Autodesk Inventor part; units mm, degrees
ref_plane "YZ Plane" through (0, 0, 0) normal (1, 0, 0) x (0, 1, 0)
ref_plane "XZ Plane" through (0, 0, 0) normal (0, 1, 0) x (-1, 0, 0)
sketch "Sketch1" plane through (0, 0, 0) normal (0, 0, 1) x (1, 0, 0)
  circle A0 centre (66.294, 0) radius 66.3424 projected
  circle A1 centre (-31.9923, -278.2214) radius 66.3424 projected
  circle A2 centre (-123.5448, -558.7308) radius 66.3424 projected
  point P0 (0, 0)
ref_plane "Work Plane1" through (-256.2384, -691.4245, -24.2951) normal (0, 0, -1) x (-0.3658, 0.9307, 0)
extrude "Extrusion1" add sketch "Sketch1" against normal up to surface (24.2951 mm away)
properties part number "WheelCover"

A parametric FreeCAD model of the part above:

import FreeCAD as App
import Part
import Sketcher

V = App.Vector
Q = App.Units.Quantity

doc = App.newDocument("Part")
body = doc.addObject("PartDesign::Body", "Body")
body.AllowCompound = True

sketch1 = body.newObject("Sketcher::SketchObject", "Sketch")
sketch1.AttachmentSupport = (doc.getObject("XY_Plane"), [""])
sketch1.MapMode = "FlatFace"
sketch1.addGeometry(Part.Circle(V(66, 0, 0), V(0, 0, 1), 66), False)
sketch1.addGeometry(Part.Circle(V(-32, -278, 0), V(0, 0, 1), 66), False)
sketch1.addGeometry(Part.Circle(V(-124, -559, 0), V(0, 0, 1), 66), False)
sketch1.addConstraint(Sketcher.Constraint("Equal", 0, 1))
sketch1.addConstraint(Sketcher.Constraint("Equal", 1, 2))
sketch1.addConstraint(Sketcher.Constraint("PointOnObject", 0, 3, -1))
sketch1.addConstraint(Sketcher.Constraint("Diameter", 0, Q("132.6848 mm")))
sketch1.addConstraint(Sketcher.Constraint("DistanceX", -1, 1, 0, 3, Q("66.294 mm")))
sketch1.addConstraint(Sketcher.Constraint("DistanceX", 1, 3, -1, 1, Q("31.9923 mm")))
sketch1.addConstraint(Sketcher.Constraint("DistanceY", 1, 3, -1, 1, Q("278.2214 mm")))
sketch1.addConstraint(Sketcher.Constraint("DistanceX", 2, 3, -1, 1, Q("123.5448 mm")))
sketch1.addConstraint(Sketcher.Constraint("DistanceY", 2, 3, -1, 1, Q("558.7308 mm")))
pad1 = body.newObject("PartDesign::Pad", "Pad")
pad1.Profile = sketch1
pad1.Length = 24.2951
pad1.Reversed = True

doc.recompute()
